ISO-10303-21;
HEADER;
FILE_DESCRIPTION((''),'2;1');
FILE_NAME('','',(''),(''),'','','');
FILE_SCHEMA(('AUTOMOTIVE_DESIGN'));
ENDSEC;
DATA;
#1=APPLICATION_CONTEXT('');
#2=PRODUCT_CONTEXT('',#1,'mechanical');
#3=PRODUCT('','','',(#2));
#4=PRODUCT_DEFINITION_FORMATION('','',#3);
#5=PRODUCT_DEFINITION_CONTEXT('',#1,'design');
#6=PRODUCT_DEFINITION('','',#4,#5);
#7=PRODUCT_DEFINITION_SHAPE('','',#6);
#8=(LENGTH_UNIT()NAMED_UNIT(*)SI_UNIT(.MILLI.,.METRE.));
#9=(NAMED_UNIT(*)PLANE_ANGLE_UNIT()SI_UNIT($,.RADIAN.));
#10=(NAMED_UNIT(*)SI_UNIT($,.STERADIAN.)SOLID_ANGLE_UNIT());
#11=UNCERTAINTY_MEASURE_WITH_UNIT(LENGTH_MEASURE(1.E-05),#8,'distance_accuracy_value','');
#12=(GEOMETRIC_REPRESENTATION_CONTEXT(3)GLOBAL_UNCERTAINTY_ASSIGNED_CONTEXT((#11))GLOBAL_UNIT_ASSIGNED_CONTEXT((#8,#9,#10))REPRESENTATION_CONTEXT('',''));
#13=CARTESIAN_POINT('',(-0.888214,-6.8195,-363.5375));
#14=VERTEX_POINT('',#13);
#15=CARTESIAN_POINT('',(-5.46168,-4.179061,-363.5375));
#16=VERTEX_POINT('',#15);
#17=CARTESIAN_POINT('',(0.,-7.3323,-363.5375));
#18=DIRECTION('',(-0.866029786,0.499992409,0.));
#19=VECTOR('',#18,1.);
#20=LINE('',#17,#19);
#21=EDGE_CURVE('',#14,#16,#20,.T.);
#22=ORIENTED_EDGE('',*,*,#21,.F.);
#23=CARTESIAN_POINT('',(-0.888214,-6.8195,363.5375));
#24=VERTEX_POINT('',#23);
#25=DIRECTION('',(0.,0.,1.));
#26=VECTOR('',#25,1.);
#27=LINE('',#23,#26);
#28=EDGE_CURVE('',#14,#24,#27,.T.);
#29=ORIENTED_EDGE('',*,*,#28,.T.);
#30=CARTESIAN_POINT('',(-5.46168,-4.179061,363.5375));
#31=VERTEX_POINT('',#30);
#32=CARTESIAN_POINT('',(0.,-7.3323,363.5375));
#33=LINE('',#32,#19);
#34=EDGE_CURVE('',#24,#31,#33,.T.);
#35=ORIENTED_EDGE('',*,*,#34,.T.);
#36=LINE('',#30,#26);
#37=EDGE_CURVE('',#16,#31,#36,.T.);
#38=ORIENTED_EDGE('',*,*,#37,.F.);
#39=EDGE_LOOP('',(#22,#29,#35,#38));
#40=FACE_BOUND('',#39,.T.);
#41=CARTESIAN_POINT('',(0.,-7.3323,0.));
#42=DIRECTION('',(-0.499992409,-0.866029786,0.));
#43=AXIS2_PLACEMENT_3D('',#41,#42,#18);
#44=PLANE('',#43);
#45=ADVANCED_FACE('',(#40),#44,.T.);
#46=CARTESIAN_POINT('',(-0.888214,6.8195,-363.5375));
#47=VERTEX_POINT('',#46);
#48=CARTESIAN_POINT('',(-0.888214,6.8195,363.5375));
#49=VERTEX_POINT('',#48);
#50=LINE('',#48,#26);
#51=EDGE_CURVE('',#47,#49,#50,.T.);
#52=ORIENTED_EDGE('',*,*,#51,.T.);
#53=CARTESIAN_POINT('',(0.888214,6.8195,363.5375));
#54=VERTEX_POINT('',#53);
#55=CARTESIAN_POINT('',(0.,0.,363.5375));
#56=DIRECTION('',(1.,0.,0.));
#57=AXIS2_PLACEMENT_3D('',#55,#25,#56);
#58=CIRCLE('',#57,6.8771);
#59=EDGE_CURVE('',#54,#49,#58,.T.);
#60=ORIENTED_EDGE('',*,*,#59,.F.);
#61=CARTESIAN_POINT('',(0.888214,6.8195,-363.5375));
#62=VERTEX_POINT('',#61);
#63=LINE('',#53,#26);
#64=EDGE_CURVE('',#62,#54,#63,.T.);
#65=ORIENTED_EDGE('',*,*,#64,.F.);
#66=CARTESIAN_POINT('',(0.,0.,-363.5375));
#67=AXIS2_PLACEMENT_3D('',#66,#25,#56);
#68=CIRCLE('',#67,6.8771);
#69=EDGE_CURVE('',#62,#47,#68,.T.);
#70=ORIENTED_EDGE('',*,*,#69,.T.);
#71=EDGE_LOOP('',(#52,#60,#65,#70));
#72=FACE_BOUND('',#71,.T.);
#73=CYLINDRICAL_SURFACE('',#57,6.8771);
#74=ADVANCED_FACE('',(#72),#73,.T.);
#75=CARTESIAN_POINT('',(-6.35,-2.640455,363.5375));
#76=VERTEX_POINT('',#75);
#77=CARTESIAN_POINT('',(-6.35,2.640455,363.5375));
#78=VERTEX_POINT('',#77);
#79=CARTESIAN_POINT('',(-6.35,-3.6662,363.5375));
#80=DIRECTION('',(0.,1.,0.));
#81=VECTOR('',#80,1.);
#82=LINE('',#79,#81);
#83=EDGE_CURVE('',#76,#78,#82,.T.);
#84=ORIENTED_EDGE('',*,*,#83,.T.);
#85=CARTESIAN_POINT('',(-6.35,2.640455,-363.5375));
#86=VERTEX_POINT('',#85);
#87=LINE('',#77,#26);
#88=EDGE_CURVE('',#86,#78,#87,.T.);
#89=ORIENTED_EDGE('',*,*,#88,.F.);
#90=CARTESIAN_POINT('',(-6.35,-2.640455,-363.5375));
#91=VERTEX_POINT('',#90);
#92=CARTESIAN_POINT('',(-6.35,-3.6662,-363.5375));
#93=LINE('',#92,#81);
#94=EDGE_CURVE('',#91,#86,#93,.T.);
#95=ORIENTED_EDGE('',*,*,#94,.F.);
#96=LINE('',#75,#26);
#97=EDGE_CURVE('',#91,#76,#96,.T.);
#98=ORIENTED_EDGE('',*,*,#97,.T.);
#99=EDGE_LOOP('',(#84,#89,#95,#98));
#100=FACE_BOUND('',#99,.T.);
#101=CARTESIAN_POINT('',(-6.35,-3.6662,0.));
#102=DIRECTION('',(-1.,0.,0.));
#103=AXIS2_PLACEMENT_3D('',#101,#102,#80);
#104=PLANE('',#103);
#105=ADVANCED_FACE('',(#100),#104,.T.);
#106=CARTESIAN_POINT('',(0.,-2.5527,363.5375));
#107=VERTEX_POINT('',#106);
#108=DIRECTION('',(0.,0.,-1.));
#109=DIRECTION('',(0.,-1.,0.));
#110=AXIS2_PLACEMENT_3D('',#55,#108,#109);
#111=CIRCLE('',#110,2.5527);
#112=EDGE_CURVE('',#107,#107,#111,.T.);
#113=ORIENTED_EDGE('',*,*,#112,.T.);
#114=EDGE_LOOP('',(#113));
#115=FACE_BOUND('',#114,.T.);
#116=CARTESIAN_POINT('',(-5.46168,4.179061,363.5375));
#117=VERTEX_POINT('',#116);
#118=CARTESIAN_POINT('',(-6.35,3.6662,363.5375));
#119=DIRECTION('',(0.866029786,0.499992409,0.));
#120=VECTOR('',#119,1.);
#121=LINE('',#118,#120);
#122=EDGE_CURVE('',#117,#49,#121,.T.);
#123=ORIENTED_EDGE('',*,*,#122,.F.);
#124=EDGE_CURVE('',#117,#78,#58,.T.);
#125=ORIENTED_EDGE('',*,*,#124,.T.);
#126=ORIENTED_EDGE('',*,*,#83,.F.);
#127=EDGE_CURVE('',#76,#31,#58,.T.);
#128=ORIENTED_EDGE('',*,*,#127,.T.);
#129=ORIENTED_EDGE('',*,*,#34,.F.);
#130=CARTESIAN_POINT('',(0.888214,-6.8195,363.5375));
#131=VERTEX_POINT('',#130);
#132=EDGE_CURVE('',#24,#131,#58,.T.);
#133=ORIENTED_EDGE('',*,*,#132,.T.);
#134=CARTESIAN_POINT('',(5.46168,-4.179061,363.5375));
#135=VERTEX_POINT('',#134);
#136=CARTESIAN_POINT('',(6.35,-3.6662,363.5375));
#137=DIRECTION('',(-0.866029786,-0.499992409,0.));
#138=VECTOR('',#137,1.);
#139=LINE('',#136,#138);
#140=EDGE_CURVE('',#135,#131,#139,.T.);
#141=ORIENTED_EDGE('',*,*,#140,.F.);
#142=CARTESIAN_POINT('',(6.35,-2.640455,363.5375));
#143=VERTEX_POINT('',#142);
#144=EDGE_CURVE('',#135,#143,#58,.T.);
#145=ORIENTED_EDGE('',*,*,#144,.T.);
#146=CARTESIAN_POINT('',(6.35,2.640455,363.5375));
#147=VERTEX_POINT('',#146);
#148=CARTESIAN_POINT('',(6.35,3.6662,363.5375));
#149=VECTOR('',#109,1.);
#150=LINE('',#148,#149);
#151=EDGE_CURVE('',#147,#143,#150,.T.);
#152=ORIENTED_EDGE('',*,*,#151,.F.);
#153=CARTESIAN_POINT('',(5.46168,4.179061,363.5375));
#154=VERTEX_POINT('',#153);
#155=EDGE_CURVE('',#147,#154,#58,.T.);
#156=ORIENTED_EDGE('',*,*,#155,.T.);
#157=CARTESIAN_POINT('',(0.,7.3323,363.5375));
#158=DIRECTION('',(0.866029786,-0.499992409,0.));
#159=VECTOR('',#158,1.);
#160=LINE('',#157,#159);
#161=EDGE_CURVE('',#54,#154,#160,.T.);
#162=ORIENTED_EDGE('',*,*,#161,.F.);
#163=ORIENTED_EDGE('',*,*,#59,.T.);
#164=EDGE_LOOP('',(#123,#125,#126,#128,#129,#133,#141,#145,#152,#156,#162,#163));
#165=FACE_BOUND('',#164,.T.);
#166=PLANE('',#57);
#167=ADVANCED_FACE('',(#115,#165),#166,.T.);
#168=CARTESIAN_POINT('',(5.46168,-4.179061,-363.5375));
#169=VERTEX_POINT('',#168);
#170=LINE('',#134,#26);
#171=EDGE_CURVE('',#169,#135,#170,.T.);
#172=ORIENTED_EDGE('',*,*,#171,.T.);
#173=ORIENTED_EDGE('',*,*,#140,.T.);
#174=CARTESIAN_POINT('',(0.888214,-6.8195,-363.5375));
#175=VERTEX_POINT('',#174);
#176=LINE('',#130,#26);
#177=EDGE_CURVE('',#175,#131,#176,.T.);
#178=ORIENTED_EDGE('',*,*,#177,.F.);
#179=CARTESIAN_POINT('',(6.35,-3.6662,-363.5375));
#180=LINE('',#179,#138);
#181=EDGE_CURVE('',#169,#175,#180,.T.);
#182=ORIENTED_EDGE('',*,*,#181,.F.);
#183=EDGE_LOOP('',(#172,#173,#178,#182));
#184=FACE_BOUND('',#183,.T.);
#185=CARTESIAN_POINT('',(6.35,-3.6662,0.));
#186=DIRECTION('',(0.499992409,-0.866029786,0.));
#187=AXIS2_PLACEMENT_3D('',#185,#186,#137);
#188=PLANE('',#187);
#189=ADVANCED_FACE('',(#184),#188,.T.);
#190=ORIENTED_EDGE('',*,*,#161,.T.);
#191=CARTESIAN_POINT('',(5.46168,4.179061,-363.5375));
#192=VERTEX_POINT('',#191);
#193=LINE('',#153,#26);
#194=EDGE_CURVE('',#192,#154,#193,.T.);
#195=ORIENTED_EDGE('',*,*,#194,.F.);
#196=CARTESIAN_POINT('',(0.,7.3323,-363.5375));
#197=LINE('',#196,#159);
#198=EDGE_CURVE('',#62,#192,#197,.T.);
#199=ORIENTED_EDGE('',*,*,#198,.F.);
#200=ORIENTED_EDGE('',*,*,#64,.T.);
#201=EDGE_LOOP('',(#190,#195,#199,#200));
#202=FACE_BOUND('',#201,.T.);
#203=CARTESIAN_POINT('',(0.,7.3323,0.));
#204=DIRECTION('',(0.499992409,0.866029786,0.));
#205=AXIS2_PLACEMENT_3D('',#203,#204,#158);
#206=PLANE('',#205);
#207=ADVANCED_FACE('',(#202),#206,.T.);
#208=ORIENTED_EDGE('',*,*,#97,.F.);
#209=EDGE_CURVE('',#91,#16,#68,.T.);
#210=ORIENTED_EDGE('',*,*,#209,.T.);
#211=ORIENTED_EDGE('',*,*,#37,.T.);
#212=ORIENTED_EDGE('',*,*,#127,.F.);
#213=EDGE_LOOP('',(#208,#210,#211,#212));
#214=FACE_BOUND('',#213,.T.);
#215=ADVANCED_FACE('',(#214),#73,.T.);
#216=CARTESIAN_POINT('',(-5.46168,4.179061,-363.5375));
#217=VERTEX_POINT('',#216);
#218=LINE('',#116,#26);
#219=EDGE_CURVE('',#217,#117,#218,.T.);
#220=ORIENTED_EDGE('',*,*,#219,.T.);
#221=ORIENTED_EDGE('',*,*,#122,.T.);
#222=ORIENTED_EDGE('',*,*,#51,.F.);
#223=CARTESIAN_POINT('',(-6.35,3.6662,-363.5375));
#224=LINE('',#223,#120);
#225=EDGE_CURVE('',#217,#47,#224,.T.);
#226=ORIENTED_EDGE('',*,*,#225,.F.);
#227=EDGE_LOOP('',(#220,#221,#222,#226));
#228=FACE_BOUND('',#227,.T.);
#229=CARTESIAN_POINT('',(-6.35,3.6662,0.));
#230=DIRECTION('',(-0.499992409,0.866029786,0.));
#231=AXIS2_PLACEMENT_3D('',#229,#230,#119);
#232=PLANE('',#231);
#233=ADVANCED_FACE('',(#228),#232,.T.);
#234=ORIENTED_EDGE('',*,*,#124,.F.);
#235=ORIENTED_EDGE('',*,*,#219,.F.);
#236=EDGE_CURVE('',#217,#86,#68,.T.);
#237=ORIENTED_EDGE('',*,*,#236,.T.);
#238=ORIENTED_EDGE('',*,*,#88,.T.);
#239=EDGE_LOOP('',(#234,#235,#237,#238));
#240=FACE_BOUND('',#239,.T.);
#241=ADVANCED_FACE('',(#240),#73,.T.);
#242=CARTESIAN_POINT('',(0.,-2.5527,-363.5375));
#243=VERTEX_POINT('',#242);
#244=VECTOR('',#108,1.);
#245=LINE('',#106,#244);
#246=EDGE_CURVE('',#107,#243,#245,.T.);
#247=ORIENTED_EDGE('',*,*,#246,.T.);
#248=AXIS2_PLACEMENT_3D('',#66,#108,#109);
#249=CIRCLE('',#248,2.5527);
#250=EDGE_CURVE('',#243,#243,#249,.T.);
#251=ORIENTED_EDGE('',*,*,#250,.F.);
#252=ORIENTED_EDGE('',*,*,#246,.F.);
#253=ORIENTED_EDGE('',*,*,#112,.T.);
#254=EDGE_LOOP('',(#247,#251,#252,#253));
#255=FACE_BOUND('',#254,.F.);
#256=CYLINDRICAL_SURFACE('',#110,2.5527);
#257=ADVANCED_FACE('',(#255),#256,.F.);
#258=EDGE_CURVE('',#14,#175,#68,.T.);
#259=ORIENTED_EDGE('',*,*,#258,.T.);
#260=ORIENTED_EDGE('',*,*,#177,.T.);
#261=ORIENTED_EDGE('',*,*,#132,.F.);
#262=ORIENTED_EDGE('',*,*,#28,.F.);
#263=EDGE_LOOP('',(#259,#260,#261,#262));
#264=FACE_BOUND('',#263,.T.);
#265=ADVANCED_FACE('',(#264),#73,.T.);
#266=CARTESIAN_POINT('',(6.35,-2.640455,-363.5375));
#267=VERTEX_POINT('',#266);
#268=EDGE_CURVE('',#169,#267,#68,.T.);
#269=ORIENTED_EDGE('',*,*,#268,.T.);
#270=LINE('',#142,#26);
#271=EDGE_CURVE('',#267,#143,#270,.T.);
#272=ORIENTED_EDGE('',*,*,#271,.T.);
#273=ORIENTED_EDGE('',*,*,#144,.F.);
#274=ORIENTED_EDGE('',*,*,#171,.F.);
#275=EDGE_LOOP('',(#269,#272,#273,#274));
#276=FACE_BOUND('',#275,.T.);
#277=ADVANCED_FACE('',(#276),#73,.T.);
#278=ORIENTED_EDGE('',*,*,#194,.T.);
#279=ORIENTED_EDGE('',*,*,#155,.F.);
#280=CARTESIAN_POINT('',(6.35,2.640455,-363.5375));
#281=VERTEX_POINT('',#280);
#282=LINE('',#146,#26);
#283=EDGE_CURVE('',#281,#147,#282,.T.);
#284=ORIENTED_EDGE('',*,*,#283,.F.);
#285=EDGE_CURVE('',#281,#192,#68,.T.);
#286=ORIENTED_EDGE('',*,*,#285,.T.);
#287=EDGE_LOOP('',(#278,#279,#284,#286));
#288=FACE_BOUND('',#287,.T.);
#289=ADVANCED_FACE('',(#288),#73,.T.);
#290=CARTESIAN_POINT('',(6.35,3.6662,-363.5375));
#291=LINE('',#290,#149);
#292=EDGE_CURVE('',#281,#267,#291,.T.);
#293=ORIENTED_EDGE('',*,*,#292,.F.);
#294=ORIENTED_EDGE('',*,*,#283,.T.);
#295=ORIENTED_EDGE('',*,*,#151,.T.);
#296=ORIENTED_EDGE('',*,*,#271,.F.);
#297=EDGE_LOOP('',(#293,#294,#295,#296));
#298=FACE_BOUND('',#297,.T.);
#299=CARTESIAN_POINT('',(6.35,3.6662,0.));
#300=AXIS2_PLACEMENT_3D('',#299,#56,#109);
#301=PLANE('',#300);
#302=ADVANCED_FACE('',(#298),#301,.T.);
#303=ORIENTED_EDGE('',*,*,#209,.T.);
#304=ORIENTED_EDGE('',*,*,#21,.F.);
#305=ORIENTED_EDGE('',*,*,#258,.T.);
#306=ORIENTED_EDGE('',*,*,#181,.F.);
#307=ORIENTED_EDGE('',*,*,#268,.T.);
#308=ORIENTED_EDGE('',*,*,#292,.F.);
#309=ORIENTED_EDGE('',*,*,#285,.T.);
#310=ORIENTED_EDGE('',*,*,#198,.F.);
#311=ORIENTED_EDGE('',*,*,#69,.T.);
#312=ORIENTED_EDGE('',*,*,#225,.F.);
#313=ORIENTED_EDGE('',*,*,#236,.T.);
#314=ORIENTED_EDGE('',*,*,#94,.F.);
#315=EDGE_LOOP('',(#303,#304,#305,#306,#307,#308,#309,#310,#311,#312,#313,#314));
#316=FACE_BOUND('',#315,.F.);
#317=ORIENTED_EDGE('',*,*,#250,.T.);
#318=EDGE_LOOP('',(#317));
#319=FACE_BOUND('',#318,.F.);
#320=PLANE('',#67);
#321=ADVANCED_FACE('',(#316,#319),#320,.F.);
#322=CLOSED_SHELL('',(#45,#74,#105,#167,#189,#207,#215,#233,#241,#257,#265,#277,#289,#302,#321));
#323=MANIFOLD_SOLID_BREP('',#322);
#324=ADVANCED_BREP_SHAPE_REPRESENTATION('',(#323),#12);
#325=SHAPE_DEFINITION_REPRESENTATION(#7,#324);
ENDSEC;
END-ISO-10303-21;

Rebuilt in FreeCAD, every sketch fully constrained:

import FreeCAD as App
import Part
import Sketcher
Q = App.Units.Quantity


def add_polygon(sketch, points):
    """Adds a closed chain of lines whose ends are joined by coincident constraints."""
    first, n = sketch.GeometryCount, len(points)
    for a, b in zip(points, points[1:] + points[:1]):
        sketch.addGeometry(Part.LineSegment(App.Vector(*a, 0), App.Vector(*b, 0)), False)
    for i in range(n):
        sketch.addConstraint(Sketcher.Constraint("Coincident", first + i, 2, first + (i + 1) % n, 1))

doc = App.newDocument("Part")
body = doc.addObject("PartDesign::Body", "Body")

# Sketch on XY plane
sketch1 = body.newObject("Sketcher::SketchObject", "Sketch")
sketch1.AttachmentSupport = (doc.getObject("XY_Plane"), [""])
sketch1.MapMode = "FlatFace"
add_polygon(sketch1, [(-6, 4), (-6, -4), (0, -7), (6, -4), (6, 4), (0, 7)])  # lines 0-5
sketch1.addConstraint(Sketcher.Constraint("Vertical", 0))
sketch1.addConstraint(Sketcher.Constraint("Vertical", 3))
sketch1.addConstraint(Sketcher.Constraint("Symmetric", 0, 2, 3, 2, -1, 1))
sketch1.addConstraint(Sketcher.Constraint("Symmetric", 1, 2, 4, 2, -1, 1))
sketch1.addConstraint(Sketcher.Constraint("PointOnObject", 1, 2, -2))
sketch1.addConstraint(Sketcher.Constraint("Parallel", 2, 5))
sketch1.addConstraint(Sketcher.Constraint("Horizontal", 0, 2, 2, 2))
sketch1.addConstraint(Sketcher.Constraint("DistanceX", 0, 2, 2, 2, Q("0.5 in")))
sketch1.addConstraint(Sketcher.Constraint("Angle", 1, Q("-29.9995 deg")))
sketch1.addConstraint(Sketcher.Constraint("DistanceY", 1, 2, 3, 2, Q("0.433 in")))
pad1 = body.newObject("PartDesign::Pad", "Pad")
pad1.Profile = sketch1
pad1.Length = Q("28.625 in")
pad1.Midplane = True

# Sketch on XY plane
sketch2 = body.newObject("Sketcher::SketchObject", "Sketch001")
sketch2.AttachmentSupport = (doc.getObject("XY_Plane"), [""])
sketch2.MapMode = "FlatFace"
sketch2.AttachmentOffset = App.Placement(App.Vector(0, 0, 14.3125 * 25.4), App.Rotation())
sketch2.addGeometry(Part.Circle(App.Vector(0, 0, 0), App.Vector(0, 0, 1), 2.6), False)
sketch2.addConstraint(Sketcher.Constraint("Coincident", 0, 3, -1, 1))
sketch2.addConstraint(Sketcher.Constraint("Diameter", 0, Q("0.201 in")))
doc.recompute()
hole = body.newObject("PartDesign::Hole", "Hole")
hole.Profile = sketch2
hole.ThreadType = "None"
hole.Diameter = Q("0.201 in")
hole.DepthType = "ThroughAll"

# Sketch on XY plane
sketch3 = body.newObject("Sketcher::SketchObject", "Sketch002")
sketch3.AttachmentSupport = (doc.getObject("XY_Plane"), [""])
sketch3.MapMode = "FlatFace"
sketch3.AttachmentOffset = App.Placement(App.Vector(0, 0, 14.3125 * 25.4), App.Rotation())
sketch3.addGeometry(Part.Circle(App.Vector(0, 0, 0), App.Vector(0, 0, 1), 9), False)
sketch3.addGeometry(Part.Circle(App.Vector(0, 0, 0), App.Vector(0, 0, 1), 7), False)
sketch3.addConstraint(Sketcher.Constraint("Coincident", 0, 3, -1, 1))
sketch3.addConstraint(Sketcher.Constraint("Coincident", 1, 3, -1, 1))
sketch3.addConstraint(Sketcher.Constraint("Diameter", 0, Q("0.7 in")))
sketch3.addConstraint(Sketcher.Constraint("Diameter", 1, Q("0.5415 in")))
pocket1 = body.newObject("PartDesign::Pocket", "Pocket")
pocket1.Profile = sketch3
pocket1.Type = "ThroughAll"

doc.recompute()
